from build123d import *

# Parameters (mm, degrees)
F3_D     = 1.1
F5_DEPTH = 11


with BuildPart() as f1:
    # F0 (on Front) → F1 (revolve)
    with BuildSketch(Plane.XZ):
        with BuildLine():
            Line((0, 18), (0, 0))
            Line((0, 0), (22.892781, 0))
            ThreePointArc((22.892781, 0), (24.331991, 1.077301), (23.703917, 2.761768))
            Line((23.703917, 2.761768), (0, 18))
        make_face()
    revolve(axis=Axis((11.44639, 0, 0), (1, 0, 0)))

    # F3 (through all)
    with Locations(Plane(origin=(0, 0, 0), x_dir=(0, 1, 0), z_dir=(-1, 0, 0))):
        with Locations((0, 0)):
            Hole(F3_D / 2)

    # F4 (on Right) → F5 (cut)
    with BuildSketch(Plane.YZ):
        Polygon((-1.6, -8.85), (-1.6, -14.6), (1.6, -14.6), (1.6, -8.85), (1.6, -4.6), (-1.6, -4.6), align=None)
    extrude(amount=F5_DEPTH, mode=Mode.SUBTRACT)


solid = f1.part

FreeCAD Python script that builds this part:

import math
import FreeCAD as App
import Part
import Sketcher
from FreeCAD import Vector
Q = App.Units.Quantity


def add_polygon(sketch, points):
    """Adds a closed chain of lines whose ends are joined by coincident constraints."""
    first, n = sketch.GeometryCount, len(points)
    for a, b in zip(points, points[1:] + points[:1]):
        sketch.addGeometry(Part.LineSegment(App.Vector(*a, 0), App.Vector(*b, 0)), False)
    for i in range(n):
        sketch.addConstraint(Sketcher.Constraint("Coincident", first + i, 2, first + (i + 1) % n, 1))

doc = App.newDocument("Part")
body = doc.addObject("PartDesign::Body", "Body")

sketch1 = body.newObject("Sketcher::SketchObject", "Sketch")
sketch1.AttachmentSupport = (doc.getObject("XZ_Plane"), [""])
sketch1.MapMode = "FlatFace"
sketch1.addGeometry(Part.LineSegment(Vector(0, 18, 0), Vector(0, 0, 0)), False)
sketch1.addGeometry(Part.LineSegment(Vector(0, 0, 0), Vector(22.9, 0, 0)), False)
sketch1.addGeometry(Part.ArcOfCircle(Part.Circle(Vector(22.9, 1.5, 0), Vector(0, 0, 1), 1.5), math.radians(-90), math.radians(57)), False)
sketch1.addGeometry(Part.LineSegment(Vector(23.7, 2.8, 0), Vector(0, 18, 0)), False)
sketch1.addConstraint(Sketcher.Constraint("Coincident", 0, 2, 1, 1))
sketch1.addConstraint(Sketcher.Constraint("Tangent", 1, 2, 2, 1))
sketch1.addConstraint(Sketcher.Constraint("Tangent", 2, 2, 3, 1))
sketch1.addConstraint(Sketcher.Constraint("Coincident", 3, 2, 0, 1))
sketch1.addConstraint(Sketcher.Constraint("Vertical", 0))
sketch1.addConstraint(Sketcher.Constraint("Horizontal", 1))
sketch1.addConstraint(Sketcher.Constraint("Coincident", 0, 2, -1, 1))
sketch1.addConstraint(Sketcher.Constraint("Radius", 2, Q("1.5 mm")))
sketch1.addConstraint(Sketcher.Constraint("DistanceY", 0, 2, 0, 1, Q("18 mm")))
sketch1.addConstraint(Sketcher.Constraint("DistanceX", 1, 1, 1, 2, Q("22.892781 mm")))
revolution = body.newObject("PartDesign::Revolution", "Revolution")
revolution.Profile = sketch1
revolution.ReferenceAxis = (sketch1, ["H_Axis"])
revolution.Angle = 360

sketch2 = body.newObject("Sketcher::SketchObject", "Sketch001")
sketch2.AttachmentSupport = (doc.getObject("YZ_Plane"), [""])
sketch2.MapMode = "FlatFace"
sketch2.addGeometry(Part.Circle(Vector(0, 0, 0), Vector(0, 0, 1), 0.6), False)
sketch2.addConstraint(Sketcher.Constraint("Coincident", 0, 3, -1, 1))
sketch2.addConstraint(Sketcher.Constraint("Diameter", 0, Q("1.1 mm")))
doc.recompute()
hole = body.newObject("PartDesign::Hole", "Hole")
hole.Profile = sketch2
hole.ThreadType = "None"
hole.Diameter = 1.1
hole.DepthType = "ThroughAll"
hole.Reversed = True

sketch3 = body.newObject("Sketcher::SketchObject", "Sketch002")
sketch3.AttachmentSupport = (doc.getObject("YZ_Plane"), [""])
sketch3.MapMode = "FlatFace"
add_polygon(sketch3, [(-1.6, -14.6), (1.6, -14.6), (1.6, -4.6), (-1.6, -4.6)])
sketch3.addConstraint(Sketcher.Constraint("Horizontal", 0))
sketch3.addConstraint(Sketcher.Constraint("Vertical", 1))
sketch3.addConstraint(Sketcher.Constraint("Horizontal", 2))
sketch3.addConstraint(Sketcher.Constraint("Vertical", 3))
sketch3.addConstraint(Sketcher.Constraint("DistanceY", 1, 1, 1, 2, Q("10 mm")))
sketch3.addConstraint(Sketcher.Constraint("DistanceX", 0, 1, 0, 2, Q("3.2 mm")))
sketch3.addConstraint(Sketcher.Constraint("DistanceX", -1, 1, 0, 2, Q("1.6 mm")))
sketch3.addConstraint(Sketcher.Constraint("DistanceY", 0, 2, -1, 1, Q("14.6 mm")))
pocket1 = body.newObject("PartDesign::Pocket", "Pocket")
pocket1.Profile = sketch3
pocket1.Length = 11
pocket1.Reversed = True

doc.recompute()
